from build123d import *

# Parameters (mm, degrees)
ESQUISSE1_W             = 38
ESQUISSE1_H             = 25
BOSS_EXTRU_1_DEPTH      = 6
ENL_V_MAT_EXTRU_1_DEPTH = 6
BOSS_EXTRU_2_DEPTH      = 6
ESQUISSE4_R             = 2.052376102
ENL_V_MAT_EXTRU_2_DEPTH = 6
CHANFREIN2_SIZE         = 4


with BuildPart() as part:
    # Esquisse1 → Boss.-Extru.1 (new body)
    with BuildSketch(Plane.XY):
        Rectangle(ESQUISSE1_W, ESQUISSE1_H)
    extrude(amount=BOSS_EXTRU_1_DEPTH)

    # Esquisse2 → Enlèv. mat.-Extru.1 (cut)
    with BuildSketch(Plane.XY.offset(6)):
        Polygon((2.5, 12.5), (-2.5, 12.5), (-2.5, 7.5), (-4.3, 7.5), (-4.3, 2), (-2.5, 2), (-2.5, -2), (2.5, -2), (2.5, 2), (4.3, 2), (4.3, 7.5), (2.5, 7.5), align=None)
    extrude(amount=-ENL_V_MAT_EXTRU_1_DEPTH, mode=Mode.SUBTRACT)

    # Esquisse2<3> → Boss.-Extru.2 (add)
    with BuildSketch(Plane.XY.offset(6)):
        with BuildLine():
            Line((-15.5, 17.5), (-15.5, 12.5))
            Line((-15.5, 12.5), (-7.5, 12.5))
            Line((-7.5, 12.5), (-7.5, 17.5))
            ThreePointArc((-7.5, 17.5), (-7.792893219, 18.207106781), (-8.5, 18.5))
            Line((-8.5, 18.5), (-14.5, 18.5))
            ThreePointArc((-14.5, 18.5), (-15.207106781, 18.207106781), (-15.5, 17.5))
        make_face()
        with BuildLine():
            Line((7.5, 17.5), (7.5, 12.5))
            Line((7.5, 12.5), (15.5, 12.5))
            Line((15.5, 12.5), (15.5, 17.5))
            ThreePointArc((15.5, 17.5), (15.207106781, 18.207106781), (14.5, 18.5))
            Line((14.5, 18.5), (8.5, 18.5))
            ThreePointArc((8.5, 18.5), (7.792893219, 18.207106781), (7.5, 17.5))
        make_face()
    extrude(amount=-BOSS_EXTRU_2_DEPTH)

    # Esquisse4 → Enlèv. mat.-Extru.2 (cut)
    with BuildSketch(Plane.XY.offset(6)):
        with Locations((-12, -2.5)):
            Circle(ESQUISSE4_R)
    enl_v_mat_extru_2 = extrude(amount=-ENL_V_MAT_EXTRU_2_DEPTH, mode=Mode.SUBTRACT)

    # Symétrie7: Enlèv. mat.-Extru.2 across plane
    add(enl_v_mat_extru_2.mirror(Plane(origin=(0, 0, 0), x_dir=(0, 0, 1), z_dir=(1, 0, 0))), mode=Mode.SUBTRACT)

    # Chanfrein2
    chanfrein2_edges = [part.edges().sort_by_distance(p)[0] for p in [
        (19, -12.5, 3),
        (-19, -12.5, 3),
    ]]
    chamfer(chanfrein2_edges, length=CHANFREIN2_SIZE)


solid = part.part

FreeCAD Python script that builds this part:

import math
import FreeCAD as App
import Part
import Sketcher


def edges_at(feature, points):
    """Names of the edges that pass closest to the given points."""
    edges = feature.Shape.Edges
    near = lambda p: min(range(len(edges)), key=lambda i: edges[i].distToShape(Part.Vertex(*p))[0])
    return sorted({f"Edge{near(p) + 1}" for p in points})

doc = App.newDocument("Part")
body = doc.addObject("PartDesign::Body", "Body")

sketch1 = body.newObject("Sketcher::SketchObject", "Sketch")
sketch1.AttachmentSupport = (doc.getObject("XY_Plane"), [""])
sketch1.MapMode = "FlatFace"
sketch1.addGeometry([
    Part.LineSegment(App.Vector(-19, 12, 0), App.Vector(-19, -12, 0)),
    Part.LineSegment(App.Vector(-19, -12, 0), App.Vector(19, -12, 0)),
    Part.LineSegment(App.Vector(19, -12, 0), App.Vector(19, 12, 0)),
    Part.LineSegment(App.Vector(19, 12, 0), App.Vector(-19, 12, 0)),
], False)
sketch1.addConstraint([
    Sketcher.Constraint("Coincident", 0, 2, 1, 1),
    Sketcher.Constraint("Coincident", 1, 2, 2, 1),
    Sketcher.Constraint("Coincident", 2, 2, 3, 1),
    Sketcher.Constraint("Coincident", 3, 2, 0, 1),
    Sketcher.Constraint("Vertical", 0),
    Sketcher.Constraint("Horizontal", 1),
    Sketcher.Constraint("Vertical", 2),
    Sketcher.Constraint("Horizontal", 3),
    Sketcher.Constraint("Symmetric", 0, 2, 2, 2, -1, 1),
    Sketcher.Constraint("DistanceX", 1, 1, 1, 2, 38.0),
    Sketcher.Constraint("DistanceY", 0, 2, 0, 1, 25.0),
])
pad1 = body.newObject("PartDesign::Pad", "Pad")
pad1.Profile = sketch1
pad1.Length = 6

sketch2 = body.newObject("Sketcher::SketchObject", "Sketch001")
sketch2.AttachmentSupport = (doc.getObject("XY_Plane"), [""])
sketch2.MapMode = "FlatFace"
sketch2.AttachmentOffset = App.Placement(App.Vector(0, 0, 6), App.Rotation())
sketch2.addGeometry([
    Part.LineSegment(App.Vector(2.5, 12.5, 0), App.Vector(-2.5, 12.5, 0)),
    Part.LineSegment(App.Vector(-2.5, 12.5, 0), App.Vector(-2.5, 7.5, 0)),
    Part.LineSegment(App.Vector(-2.5, 7.5, 0), App.Vector(-4.3, 7.5, 0)),
    Part.LineSegment(App.Vector(-4.3, 7.5, 0), App.Vector(-4.3, 2, 0)),
    Part.LineSegment(App.Vector(-4.3, 2, 0), App.Vector(-2.5, 2, 0)),
    Part.LineSegment(App.Vector(-2.5, 2, 0), App.Vector(-2.5, -2, 0)),
    Part.LineSegment(App.Vector(-2.5, -2, 0), App.Vector(2.5, -2, 0)),
    Part.LineSegment(App.Vector(2.5, -2, 0), App.Vector(2.5, 2, 0)),
    Part.LineSegment(App.Vector(2.5, 2, 0), App.Vector(4.3, 2, 0)),
    Part.LineSegment(App.Vector(4.3, 2, 0), App.Vector(4.3, 7.5, 0)),
    Part.LineSegment(App.Vector(4.3, 7.5, 0), App.Vector(2.5, 7.5, 0)),
    Part.LineSegment(App.Vector(2.5, 7.5, 0), App.Vector(2.5, 12.5, 0)),
], False)
sketch2.addConstraint([
    Sketcher.Constraint("Coincident", 0, 2, 1, 1),
    Sketcher.Constraint("Coincident", 1, 2, 2, 1),
    Sketcher.Constraint("Coincident", 2, 2, 3, 1),
    Sketcher.Constraint("Coincident", 3, 2, 4, 1),
    Sketcher.Constraint("Coincident", 4, 2, 5, 1),
    Sketcher.Constraint("Coincident", 5, 2, 6, 1),
    Sketcher.Constraint("Coincident", 6, 2, 7, 1),
    Sketcher.Constraint("Coincident", 7, 2, 8, 1),
    Sketcher.Constraint("Coincident", 8, 2, 9, 1),
    Sketcher.Constraint("Coincident", 9, 2, 10, 1),
    Sketcher.Constraint("Coincident", 10, 2, 11, 1),
    Sketcher.Constraint("Coincident", 11, 2, 0, 1),
    Sketcher.Constraint("Horizontal", 0),
    Sketcher.Constraint("Vertical", 1),
    Sketcher.Constraint("Horizontal", 2),
    Sketcher.Constraint("Vertical", 3),
    Sketcher.Constraint("Horizontal", 4),
    Sketcher.Constraint("Vertical", 5),
    Sketcher.Constraint("Horizontal", 6),
    Sketcher.Constraint("Vertical", 7),
    Sketcher.Constraint("Horizontal", 8),
    Sketcher.Constraint("Vertical", 9),
    Sketcher.Constraint("Horizontal", 10),
    Sketcher.Constraint("Vertical", 11),
    Sketcher.Constraint("Symmetric", 4, 2, 6, 2, -1, 1),
    Sketcher.Constraint("Symmetric", 3, 2, 8, 2, -2),
    Sketcher.Constraint("Symmetric", 1, 2, 10, 2, -2),
    Sketcher.Constraint("Vertical", 1, 2, 4, 2),
    Sketcher.Constraint("Equal", 6, 1),
    Sketcher.Constraint("DistanceX", 0, 2, 0, 1, 5.0),
    Sketcher.Constraint("DistanceY", 5, 2, 5, 1, 4.0),
    Sketcher.Constraint("DistanceX", 2, 2, 2, 1, 1.8),
    Sketcher.Constraint("DistanceY", 3, 2, 3, 1, 5.5),
])
pocket1 = body.newObject("PartDesign::Pocket", "Pocket")
pocket1.Profile = sketch2
pocket1.Length = 6

sketch3 = body.newObject("Sketcher::SketchObject", "Sketch002")
sketch3.AttachmentSupport = (doc.getObject("XY_Plane"), [""])
sketch3.MapMode = "FlatFace"
sketch3.AttachmentOffset = App.Placement(App.Vector(0, 0, 6), App.Rotation())
sketch3.addGeometry([
    Part.LineSegment(App.Vector(-15.5, 17.5, 0), App.Vector(-15.5, 12.5, 0)),
    Part.LineSegment(App.Vector(-15.5, 12.5, 0), App.Vector(-7.5, 12.5, 0)),
    Part.LineSegment(App.Vector(-7.5, 12.5, 0), App.Vector(-7.5, 17.5, 0)),
    Part.ArcOfCircle(Part.Circle(App.Vector(-8.5, 17.5, 0), App.Vector(0, 0, 1), 1), math.radians(0), math.radians(90)),
    Part.LineSegment(App.Vector(-8.5, 18.5, 0), App.Vector(-14.5, 18.5, 0)),
    Part.ArcOfCircle(Part.Circle(App.Vector(-14.5, 17.5, 0), App.Vector(0, 0, 1), 1), math.radians(90), math.radians(180)),
    Part.LineSegment(App.Vector(7.5, 17.5, 0), App.Vector(7.5, 12.5, 0)),
    Part.LineSegment(App.Vector(7.5, 12.5, 0), App.Vector(15.5, 12.5, 0)),
    Part.LineSegment(App.Vector(15.5, 12.5, 0), App.Vector(15.5, 17.5, 0)),
    Part.ArcOfCircle(Part.Circle(App.Vector(14.5, 17.5, 0), App.Vector(0, 0, 1), 1), math.radians(0), math.radians(90)),
    Part.LineSegment(App.Vector(14.5, 18.5, 0), App.Vector(8.5, 18.5, 0)),
    Part.ArcOfCircle(Part.Circle(App.Vector(8.5, 17.5, 0), App.Vector(0, 0, 1), 1), math.radians(90), math.radians(180)),
], False)
sketch3.addConstraint([
    Sketcher.Constraint("Coincident", 0, 2, 1, 1),
    Sketcher.Constraint("Coincident", 1, 2, 2, 1),
    Sketcher.Constraint("Tangent", 2, 2, 3, 1),
    Sketcher.Constraint("Tangent", 3, 2, 4, 1),
    Sketcher.Constraint("Tangent", 4, 2, 5, 1),
    Sketcher.Constraint("Tangent", 5, 2, 0, 1),
    Sketcher.Constraint("Coincident", 6, 2, 7, 1),
    Sketcher.Constraint("Coincident", 7, 2, 8, 1),
    Sketcher.Constraint("Tangent", 8, 2, 9, 1),
    Sketcher.Constraint("Tangent", 9, 2, 10, 1),
    Sketcher.Constraint("Tangent", 10, 2, 11, 1),
    Sketcher.Constraint("Tangent", 11, 2, 6, 1),
    Sketcher.Constraint("Vertical", 0),
    Sketcher.Constraint("Horizontal", 1),
    Sketcher.Constraint("Vertical", 2),
    Sketcher.Constraint("Horizontal", 4),
    Sketcher.Constraint("Vertical", 6),
    Sketcher.Constraint("Horizontal", 7),
    Sketcher.Constraint("Vertical", 8),
    Sketcher.Constraint("Horizontal", 10),
    Sketcher.Constraint("Equal", 3, 5),
    Sketcher.Constraint("Equal", 5, 9),
    Sketcher.Constraint("Equal", 9, 11),
    Sketcher.Constraint("Symmetric", 5, 3, 9, 3, -2),
    Sketcher.Constraint("Symmetric", 1, 2, 6, 2, -2),
    Sketcher.Constraint("Radius", 3, 1.0),
    Sketcher.Constraint("DistanceX", 1, 1, 1, 2, 8.0),
    Sketcher.Constraint("DistanceY", 0, 2, 0, 1, 5.0),
    Sketcher.Constraint("DistanceX", 3, 3, 9, 3, 23.0),
    Sketcher.Constraint("DistanceY", -1, 1, 3, 3, 17.5),
])
pad2 = body.newObject("PartDesign::Pad", "Pad001")
pad2.Profile = sketch3
pad2.Length = 6
pad2.Reversed = True

sketch4 = body.newObject("Sketcher::SketchObject", "Sketch003")
sketch4.AttachmentSupport = (doc.getObject("XY_Plane"), [""])
sketch4.MapMode = "FlatFace"
sketch4.AttachmentOffset = App.Placement(App.Vector(0, 0, 6), App.Rotation())
sketch4.addGeometry(Part.Circle(App.Vector(-12, -2.5, 0), App.Vector(0, 0, 1), 2.1), False)
sketch4.addConstraint([
    Sketcher.Constraint("DistanceX", 0, 3, -1, 1, 12.0),
    Sketcher.Constraint("DistanceY", 0, 3, -1, 1, 2.5),
    Sketcher.Constraint("Diameter", 0, 4.104752),
])
pocket2 = body.newObject("PartDesign::Pocket", "Pocket001")
pocket2.Profile = sketch4
pocket2.Length = 6
doc.recompute()

mirrored = body.newObject("PartDesign::Mirrored", "Mirrored")
mirrored.Originals = [pocket2]
mirrored.MirrorPlane = (doc.getObject("YZ_Plane"), [""])
body.Tip = mirrored
doc.recompute()

chamfer = body.newObject("PartDesign::Chamfer", "Chamfer")
chamfer.Base = (mirrored, edges_at(mirrored, [(19, -12.5, 3), (-19, -12.5, 3)]))
chamfer.Size = 4

doc.recompute()
